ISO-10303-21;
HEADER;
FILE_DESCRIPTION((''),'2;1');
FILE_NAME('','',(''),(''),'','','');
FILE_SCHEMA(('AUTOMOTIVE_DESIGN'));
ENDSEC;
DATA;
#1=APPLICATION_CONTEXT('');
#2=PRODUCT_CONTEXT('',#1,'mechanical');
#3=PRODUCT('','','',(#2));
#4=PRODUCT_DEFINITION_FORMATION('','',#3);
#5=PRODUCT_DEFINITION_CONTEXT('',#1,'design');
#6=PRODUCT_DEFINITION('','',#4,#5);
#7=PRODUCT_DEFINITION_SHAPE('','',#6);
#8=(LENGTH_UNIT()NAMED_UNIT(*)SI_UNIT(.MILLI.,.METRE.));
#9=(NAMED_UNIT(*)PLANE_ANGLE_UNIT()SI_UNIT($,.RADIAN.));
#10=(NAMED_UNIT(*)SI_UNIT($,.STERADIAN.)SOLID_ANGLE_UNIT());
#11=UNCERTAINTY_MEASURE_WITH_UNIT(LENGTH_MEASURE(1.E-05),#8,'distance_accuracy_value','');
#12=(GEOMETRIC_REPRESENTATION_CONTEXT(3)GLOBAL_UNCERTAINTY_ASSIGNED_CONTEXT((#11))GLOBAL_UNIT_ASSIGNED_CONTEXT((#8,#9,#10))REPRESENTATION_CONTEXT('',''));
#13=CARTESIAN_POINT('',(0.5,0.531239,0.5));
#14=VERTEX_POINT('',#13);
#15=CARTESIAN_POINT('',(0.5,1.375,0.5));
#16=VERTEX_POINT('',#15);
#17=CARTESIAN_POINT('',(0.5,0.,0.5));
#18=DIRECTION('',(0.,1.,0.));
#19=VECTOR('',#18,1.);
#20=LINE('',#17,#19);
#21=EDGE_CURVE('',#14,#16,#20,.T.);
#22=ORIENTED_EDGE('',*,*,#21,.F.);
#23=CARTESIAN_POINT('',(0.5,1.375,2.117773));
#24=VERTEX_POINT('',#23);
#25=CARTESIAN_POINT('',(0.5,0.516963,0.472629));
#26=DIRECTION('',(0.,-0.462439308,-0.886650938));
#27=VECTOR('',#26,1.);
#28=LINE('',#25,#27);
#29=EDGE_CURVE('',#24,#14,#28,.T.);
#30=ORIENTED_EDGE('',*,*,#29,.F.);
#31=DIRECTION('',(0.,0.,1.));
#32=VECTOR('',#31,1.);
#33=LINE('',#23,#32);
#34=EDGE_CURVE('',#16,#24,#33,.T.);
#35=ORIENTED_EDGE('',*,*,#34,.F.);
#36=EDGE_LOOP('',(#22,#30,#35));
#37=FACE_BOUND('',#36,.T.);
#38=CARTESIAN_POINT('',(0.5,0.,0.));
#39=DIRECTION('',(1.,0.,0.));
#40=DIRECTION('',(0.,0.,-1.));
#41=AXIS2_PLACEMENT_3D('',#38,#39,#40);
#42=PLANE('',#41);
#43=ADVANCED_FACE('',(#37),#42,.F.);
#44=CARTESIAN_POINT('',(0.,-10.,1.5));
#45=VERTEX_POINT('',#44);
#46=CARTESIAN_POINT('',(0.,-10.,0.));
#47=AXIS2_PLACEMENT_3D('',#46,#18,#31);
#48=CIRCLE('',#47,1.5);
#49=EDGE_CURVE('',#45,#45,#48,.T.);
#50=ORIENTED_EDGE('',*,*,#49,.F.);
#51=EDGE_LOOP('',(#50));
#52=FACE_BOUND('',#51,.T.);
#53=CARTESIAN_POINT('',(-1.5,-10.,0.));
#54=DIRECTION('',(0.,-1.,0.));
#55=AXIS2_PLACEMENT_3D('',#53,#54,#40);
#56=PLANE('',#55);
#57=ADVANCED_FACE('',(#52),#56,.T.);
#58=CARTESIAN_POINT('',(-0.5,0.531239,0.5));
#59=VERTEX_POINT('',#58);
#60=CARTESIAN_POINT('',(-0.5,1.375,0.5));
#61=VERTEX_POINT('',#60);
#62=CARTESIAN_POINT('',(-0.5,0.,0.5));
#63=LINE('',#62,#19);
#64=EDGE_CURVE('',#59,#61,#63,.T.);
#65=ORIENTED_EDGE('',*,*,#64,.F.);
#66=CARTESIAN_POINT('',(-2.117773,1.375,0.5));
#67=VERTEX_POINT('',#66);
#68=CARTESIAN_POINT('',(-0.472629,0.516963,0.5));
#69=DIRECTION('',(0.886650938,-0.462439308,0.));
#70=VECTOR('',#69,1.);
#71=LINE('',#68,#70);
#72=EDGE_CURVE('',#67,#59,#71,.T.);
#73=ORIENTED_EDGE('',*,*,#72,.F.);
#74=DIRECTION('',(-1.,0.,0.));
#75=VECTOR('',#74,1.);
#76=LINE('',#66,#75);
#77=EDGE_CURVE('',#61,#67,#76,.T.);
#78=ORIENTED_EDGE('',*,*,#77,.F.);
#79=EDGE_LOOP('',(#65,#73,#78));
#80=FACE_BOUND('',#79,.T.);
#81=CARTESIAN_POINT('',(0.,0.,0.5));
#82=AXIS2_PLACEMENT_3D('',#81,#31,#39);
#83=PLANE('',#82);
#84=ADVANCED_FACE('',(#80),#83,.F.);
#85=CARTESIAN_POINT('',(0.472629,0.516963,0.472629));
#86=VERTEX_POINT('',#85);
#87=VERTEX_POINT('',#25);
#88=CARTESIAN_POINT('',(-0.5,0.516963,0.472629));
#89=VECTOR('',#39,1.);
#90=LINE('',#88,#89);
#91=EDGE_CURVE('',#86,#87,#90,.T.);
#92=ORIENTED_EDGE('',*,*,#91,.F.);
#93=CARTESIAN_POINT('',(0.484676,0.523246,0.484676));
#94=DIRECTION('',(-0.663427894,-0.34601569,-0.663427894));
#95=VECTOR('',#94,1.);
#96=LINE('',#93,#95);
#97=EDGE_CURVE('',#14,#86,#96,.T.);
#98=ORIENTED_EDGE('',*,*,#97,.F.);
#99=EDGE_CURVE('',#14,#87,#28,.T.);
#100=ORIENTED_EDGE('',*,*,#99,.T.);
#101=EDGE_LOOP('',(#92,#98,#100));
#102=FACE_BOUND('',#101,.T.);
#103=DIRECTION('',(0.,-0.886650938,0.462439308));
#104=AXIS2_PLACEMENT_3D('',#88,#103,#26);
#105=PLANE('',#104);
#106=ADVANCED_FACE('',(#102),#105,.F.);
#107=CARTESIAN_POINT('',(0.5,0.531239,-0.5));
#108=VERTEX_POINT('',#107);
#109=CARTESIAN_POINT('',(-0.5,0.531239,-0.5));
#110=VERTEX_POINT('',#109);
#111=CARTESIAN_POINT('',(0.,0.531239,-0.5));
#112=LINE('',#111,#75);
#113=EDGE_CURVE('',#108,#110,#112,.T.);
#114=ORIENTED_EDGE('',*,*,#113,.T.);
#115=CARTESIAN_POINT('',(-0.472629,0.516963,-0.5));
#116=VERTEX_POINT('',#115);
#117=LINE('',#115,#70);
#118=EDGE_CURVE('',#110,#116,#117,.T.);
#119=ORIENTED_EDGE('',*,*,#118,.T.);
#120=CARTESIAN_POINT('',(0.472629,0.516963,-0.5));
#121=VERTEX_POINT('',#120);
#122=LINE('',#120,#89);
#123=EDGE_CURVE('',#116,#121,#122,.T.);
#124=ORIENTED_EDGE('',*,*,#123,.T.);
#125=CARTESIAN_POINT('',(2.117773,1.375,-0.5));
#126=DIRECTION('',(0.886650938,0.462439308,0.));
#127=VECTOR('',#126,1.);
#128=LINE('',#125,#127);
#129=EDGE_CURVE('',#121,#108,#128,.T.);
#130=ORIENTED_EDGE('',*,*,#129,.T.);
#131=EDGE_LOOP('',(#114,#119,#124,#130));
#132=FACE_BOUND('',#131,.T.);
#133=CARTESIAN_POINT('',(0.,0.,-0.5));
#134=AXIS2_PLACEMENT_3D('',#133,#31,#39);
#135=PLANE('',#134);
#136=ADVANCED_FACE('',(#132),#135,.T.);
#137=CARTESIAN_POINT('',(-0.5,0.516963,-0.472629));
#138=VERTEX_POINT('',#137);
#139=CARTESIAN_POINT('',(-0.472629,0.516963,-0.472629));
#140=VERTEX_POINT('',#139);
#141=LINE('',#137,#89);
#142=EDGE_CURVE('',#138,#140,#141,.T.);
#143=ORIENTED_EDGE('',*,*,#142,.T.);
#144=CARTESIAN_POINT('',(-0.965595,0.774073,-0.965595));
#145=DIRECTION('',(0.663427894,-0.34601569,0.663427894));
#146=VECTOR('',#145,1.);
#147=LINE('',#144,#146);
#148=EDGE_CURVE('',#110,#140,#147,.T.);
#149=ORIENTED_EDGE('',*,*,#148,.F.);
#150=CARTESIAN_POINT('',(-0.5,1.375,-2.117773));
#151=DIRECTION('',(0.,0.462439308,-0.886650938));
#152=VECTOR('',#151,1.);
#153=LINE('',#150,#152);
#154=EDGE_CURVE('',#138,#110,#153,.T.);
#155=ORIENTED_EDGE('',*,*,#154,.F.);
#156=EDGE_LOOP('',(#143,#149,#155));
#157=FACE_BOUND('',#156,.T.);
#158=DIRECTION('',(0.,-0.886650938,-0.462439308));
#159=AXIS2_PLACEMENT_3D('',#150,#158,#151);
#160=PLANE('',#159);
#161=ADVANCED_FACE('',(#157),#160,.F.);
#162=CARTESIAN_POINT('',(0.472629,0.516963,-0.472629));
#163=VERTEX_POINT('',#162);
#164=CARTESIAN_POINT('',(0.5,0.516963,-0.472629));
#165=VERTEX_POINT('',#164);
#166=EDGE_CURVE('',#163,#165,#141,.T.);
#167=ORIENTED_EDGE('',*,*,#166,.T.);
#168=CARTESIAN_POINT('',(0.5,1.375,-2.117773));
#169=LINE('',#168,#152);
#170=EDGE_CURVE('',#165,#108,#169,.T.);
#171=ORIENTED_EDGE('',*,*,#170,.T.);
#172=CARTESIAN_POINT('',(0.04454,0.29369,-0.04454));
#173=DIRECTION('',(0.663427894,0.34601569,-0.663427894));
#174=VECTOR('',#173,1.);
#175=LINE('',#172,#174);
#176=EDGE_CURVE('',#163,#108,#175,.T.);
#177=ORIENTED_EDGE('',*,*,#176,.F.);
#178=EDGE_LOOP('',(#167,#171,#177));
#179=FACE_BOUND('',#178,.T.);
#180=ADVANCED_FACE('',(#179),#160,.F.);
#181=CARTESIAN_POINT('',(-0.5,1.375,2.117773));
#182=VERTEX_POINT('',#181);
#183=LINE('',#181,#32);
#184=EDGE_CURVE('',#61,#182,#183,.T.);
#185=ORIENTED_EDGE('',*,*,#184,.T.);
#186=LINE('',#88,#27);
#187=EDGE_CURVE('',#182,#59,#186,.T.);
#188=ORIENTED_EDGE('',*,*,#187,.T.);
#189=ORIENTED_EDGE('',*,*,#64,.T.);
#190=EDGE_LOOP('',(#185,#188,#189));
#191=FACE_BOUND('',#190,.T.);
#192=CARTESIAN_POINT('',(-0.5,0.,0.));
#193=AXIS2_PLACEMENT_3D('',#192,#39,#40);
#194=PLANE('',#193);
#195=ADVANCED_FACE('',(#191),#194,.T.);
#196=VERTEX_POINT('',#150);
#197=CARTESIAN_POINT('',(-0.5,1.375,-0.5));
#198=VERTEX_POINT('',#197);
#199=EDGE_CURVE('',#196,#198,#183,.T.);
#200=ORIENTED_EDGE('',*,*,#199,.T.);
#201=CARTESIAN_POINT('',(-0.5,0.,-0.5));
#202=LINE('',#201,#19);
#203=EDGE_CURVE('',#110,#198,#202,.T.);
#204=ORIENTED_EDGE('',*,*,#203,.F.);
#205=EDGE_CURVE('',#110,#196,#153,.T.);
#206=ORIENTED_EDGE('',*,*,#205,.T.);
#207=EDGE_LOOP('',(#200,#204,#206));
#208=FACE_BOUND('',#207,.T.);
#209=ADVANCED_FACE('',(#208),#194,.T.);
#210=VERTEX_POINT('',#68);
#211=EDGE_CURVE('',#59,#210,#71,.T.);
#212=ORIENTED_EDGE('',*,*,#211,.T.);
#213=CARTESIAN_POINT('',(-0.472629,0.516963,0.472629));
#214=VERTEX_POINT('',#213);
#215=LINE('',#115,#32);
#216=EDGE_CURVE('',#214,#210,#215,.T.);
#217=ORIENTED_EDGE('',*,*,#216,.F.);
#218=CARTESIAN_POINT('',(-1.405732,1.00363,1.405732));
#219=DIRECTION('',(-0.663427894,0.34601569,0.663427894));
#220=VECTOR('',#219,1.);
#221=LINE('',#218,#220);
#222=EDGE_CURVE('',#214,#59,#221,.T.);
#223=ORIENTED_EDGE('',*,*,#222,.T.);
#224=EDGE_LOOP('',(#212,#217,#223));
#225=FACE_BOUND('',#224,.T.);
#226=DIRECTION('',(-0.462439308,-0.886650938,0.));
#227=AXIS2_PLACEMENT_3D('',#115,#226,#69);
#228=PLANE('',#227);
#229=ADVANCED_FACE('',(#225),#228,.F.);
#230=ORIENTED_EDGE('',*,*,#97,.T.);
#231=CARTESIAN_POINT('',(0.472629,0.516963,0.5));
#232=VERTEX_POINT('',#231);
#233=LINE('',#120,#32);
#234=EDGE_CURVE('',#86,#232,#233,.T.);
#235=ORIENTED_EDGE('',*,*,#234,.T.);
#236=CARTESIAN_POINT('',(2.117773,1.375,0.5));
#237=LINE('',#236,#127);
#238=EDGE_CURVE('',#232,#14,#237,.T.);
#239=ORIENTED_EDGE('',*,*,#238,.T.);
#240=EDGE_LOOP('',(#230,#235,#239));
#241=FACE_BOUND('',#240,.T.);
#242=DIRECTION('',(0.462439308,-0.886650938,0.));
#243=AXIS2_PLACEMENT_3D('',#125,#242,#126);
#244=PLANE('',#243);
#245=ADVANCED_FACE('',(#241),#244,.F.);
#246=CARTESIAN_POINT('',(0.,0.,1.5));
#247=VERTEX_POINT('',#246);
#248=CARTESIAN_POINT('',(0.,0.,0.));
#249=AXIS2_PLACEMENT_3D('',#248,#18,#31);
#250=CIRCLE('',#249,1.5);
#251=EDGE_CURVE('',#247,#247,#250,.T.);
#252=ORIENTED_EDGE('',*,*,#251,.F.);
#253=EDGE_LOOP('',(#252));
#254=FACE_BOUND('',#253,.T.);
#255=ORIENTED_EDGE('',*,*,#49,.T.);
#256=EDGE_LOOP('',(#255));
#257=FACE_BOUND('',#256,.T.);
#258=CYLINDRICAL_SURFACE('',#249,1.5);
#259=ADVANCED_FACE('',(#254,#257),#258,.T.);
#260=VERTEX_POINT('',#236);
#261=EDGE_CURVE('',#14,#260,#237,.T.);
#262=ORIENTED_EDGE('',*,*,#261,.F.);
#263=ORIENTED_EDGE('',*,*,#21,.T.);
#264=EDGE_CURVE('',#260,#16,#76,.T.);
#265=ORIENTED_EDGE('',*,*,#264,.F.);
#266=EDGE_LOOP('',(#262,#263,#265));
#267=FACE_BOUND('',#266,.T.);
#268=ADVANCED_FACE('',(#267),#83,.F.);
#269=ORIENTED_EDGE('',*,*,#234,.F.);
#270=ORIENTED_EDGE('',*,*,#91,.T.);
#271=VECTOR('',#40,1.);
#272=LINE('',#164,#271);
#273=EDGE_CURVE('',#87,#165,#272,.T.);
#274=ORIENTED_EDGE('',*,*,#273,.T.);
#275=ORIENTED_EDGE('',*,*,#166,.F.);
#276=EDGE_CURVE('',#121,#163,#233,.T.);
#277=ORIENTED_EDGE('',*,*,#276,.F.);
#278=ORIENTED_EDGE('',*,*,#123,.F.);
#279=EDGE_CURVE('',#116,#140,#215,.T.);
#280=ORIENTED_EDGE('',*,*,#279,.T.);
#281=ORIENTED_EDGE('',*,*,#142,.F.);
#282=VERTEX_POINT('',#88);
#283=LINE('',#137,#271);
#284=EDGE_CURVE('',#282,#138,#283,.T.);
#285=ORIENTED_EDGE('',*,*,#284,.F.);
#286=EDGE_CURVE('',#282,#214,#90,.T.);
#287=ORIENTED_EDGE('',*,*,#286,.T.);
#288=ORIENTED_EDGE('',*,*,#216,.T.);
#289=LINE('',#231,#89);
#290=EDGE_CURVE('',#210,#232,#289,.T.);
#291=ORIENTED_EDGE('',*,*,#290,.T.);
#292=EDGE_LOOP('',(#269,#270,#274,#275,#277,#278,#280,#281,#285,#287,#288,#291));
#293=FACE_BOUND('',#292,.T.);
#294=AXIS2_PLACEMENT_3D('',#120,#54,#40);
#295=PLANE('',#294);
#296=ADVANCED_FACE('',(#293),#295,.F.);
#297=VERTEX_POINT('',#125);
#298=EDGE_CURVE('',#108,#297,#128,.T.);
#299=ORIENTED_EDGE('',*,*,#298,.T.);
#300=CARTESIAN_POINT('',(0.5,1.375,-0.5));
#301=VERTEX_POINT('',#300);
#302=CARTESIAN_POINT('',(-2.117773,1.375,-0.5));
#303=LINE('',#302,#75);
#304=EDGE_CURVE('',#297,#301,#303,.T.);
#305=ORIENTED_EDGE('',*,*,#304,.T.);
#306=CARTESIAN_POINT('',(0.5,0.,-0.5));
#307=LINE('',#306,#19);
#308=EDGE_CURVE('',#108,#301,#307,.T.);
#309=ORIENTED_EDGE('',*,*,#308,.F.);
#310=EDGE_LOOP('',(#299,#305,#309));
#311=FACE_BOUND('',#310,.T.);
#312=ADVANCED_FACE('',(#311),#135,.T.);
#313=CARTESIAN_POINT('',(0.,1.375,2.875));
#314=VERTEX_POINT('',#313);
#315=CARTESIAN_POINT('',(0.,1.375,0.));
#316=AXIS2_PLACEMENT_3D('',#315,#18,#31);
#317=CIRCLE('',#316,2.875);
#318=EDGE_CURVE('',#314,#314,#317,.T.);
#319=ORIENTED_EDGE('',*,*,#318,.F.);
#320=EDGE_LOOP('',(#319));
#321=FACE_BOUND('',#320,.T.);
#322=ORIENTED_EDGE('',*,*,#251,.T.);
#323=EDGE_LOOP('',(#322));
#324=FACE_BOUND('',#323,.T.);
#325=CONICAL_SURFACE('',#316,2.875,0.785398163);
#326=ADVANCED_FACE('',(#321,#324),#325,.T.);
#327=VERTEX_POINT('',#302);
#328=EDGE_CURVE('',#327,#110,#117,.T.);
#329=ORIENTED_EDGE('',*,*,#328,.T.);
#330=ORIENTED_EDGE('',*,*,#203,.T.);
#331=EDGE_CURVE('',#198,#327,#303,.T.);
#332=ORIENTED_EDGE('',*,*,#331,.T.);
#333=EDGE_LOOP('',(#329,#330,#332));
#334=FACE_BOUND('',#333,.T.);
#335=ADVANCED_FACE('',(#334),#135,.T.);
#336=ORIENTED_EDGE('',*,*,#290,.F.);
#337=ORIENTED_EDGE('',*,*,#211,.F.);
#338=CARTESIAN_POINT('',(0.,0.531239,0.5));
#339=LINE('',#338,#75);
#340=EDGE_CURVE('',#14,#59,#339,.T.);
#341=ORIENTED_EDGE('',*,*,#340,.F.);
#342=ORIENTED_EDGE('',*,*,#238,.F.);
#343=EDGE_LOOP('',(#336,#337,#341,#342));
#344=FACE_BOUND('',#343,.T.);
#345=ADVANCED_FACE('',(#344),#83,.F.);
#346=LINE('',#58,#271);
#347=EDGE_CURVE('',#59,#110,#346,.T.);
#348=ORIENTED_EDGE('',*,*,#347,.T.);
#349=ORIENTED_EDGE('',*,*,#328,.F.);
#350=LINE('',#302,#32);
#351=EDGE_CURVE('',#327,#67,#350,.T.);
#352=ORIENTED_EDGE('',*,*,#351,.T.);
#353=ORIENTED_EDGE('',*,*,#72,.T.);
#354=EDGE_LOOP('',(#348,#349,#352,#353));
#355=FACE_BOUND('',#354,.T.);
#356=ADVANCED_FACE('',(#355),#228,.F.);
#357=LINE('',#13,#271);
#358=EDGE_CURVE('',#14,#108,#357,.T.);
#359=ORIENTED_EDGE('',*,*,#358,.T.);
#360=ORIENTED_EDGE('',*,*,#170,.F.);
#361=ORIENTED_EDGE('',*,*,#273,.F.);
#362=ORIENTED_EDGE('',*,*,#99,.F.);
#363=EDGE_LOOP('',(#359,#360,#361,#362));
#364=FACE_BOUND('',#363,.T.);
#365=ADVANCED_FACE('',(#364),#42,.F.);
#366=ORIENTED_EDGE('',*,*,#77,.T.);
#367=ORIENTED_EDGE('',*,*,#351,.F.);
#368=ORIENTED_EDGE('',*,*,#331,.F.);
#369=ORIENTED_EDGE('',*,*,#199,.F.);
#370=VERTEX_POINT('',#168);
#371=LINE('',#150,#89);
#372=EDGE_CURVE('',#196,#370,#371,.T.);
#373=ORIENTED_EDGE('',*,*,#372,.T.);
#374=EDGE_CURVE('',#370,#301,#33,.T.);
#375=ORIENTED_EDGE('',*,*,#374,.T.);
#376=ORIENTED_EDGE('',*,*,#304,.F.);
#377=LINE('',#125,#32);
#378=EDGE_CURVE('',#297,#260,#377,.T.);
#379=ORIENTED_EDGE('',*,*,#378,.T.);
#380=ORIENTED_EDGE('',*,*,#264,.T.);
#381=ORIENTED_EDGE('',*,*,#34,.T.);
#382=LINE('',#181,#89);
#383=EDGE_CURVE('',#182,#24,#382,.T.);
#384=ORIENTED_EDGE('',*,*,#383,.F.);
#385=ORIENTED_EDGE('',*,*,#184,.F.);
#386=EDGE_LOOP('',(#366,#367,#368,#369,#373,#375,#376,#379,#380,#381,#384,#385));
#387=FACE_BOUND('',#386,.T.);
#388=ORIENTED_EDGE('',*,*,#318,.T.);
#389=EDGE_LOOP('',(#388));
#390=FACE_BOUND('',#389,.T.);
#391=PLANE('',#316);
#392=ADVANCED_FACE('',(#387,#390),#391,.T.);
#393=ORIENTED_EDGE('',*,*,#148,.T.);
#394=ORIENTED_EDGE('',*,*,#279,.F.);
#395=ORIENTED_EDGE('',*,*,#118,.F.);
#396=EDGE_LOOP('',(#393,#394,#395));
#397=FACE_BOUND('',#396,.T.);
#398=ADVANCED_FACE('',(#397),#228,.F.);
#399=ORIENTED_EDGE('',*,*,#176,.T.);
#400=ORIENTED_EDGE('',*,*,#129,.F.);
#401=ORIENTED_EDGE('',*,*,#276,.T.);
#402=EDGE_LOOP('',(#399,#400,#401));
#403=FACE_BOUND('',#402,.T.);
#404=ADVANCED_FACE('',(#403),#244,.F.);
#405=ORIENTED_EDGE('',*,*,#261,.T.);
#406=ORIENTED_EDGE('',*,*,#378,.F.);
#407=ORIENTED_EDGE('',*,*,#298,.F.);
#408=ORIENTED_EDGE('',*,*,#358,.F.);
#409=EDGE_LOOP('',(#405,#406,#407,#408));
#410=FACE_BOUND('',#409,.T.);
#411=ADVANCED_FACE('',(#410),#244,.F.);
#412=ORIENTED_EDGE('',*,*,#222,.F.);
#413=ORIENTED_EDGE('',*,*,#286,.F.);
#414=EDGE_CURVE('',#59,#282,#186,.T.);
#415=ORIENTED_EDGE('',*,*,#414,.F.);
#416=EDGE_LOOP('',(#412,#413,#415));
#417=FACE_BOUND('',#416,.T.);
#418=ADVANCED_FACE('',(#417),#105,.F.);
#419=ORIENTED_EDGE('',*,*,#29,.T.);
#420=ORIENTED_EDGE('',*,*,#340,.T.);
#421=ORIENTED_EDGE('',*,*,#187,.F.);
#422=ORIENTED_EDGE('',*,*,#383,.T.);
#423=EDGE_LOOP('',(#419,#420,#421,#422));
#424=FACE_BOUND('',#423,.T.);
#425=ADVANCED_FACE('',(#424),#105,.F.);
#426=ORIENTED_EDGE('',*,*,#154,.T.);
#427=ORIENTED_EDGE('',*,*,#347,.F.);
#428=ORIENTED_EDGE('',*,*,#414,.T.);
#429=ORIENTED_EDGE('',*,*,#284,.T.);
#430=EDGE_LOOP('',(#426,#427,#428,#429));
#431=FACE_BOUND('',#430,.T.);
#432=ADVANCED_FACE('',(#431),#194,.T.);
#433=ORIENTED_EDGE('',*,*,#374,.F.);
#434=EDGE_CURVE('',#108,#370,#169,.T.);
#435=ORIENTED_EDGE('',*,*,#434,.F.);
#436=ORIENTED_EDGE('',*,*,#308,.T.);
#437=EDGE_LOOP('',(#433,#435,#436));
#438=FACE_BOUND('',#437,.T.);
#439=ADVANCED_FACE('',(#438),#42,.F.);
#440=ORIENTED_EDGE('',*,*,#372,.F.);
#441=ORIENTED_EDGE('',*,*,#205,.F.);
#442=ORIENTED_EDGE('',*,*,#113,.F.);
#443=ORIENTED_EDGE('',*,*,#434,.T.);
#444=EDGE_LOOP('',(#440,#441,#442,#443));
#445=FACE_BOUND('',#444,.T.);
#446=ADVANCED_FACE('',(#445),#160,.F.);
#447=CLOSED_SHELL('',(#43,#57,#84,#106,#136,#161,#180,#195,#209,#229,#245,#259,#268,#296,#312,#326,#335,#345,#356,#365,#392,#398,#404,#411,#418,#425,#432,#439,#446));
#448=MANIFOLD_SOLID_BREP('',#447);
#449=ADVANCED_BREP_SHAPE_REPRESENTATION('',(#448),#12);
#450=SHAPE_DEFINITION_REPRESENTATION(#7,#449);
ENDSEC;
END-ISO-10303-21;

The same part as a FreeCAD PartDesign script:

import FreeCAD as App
import Part
import Sketcher
Q = App.Units.Quantity


def add_polygon(sketch, points):
    """Adds a closed chain of lines whose ends are joined by coincident constraints."""
    first, n = sketch.GeometryCount, len(points)
    for a, b in zip(points, points[1:] + points[:1]):
        sketch.addGeometry(Part.LineSegment(App.Vector(*a, 0), App.Vector(*b, 0)), False)
    for i in range(n):
        sketch.addConstraint(Sketcher.Constraint("Coincident", first + i, 2, first + (i + 1) % n, 1))

doc = App.newDocument("Part")
body = doc.addObject("PartDesign::Body", "Body")

# Sketch on XY plane
sketch1 = body.newObject("Sketcher::SketchObject", "Sketch")
sketch1.AttachmentSupport = (doc.getObject("XY_Plane"), [""])
sketch1.MapMode = "FlatFace"
add_polygon(sketch1, [(-1.5, 0), (-1.5, -10), (0, -10), (0, 1.4), (-2.9, 1.4)])  # lines 0-4
sketch1.addConstraint(Sketcher.Constraint("Vertical", 0))
sketch1.addConstraint(Sketcher.Constraint("Horizontal", 1))
sketch1.addConstraint(Sketcher.Constraint("Vertical", 2))
sketch1.addConstraint(Sketcher.Constraint("Horizontal", 3))
sketch1.addConstraint(Sketcher.Constraint("PointOnObject", 1, 2, -2))
sketch1.addConstraint(Sketcher.Constraint("PointOnObject", 4, 2, -1))
sketch1.addConstraint(Sketcher.Constraint("DistanceY", 0, 2, 0, 1, 10.0))
sketch1.addConstraint(Sketcher.Constraint("Angle", 4, Q("-45 deg")))
sketch1.addConstraint(Sketcher.Constraint("DistanceX", 1, 1, 1, 2, 1.5))
sketch1.addConstraint(Sketcher.Constraint("DistanceX", 3, 2, 3, 1, 2.875))
revolution = body.newObject("PartDesign::Revolution", "Revolution")
revolution.Profile = sketch1
revolution.ReferenceAxis = (sketch1, ["V_Axis"])
revolution.Angle = 360

# Sketch on XY plane
sketch2 = body.newObject("Sketcher::SketchObject", "Sketch001")
sketch2.AttachmentSupport = (doc.getObject("XY_Plane"), [""])
sketch2.MapMode = "FlatFace"
add_polygon(sketch2, [(2.1, 1.4), (-2.1, 1.4), (-0.5, 0.5), (0.5, 0.5)])  # lines 0-3
sketch2.addConstraint(Sketcher.Constraint("Horizontal", 0))
sketch2.addConstraint(Sketcher.Constraint("Horizontal", 2))
sketch2.addConstraint(Sketcher.Constraint("Equal", 1, 3))
sketch2.addConstraint(Sketcher.Constraint("DistanceY", -1, 1, 0, 2, 1.375))
sketch2.addConstraint(Sketcher.Constraint("DistanceX", 2, 1, 2, 2, 0.945258))
sketch2.addConstraint(Sketcher.Constraint("Distance", 1, 1.855458))
sketch2.addConstraint(Sketcher.Constraint("DistanceX", 0, 2, 0, 1, 4.235546))
sketch2.addConstraint(Sketcher.Constraint("DistanceX", 1, 2, -1, 1, 0.472629))
pocket1 = body.newObject("PartDesign::Pocket", "Pocket")
pocket1.Profile = sketch2
pocket1.Length = 1
pocket1.Midplane = True
doc.recompute()

polarpattern = body.newObject("PartDesign::PolarPattern", "PolarPattern")
polarpattern.Originals = [pocket1]
polarpattern.Axis = (doc.getObject("Y_Axis"), [""])
polarpattern.Angle = 360
polarpattern.Occurrences = 4
body.Tip = polarpattern

doc.recompute()
